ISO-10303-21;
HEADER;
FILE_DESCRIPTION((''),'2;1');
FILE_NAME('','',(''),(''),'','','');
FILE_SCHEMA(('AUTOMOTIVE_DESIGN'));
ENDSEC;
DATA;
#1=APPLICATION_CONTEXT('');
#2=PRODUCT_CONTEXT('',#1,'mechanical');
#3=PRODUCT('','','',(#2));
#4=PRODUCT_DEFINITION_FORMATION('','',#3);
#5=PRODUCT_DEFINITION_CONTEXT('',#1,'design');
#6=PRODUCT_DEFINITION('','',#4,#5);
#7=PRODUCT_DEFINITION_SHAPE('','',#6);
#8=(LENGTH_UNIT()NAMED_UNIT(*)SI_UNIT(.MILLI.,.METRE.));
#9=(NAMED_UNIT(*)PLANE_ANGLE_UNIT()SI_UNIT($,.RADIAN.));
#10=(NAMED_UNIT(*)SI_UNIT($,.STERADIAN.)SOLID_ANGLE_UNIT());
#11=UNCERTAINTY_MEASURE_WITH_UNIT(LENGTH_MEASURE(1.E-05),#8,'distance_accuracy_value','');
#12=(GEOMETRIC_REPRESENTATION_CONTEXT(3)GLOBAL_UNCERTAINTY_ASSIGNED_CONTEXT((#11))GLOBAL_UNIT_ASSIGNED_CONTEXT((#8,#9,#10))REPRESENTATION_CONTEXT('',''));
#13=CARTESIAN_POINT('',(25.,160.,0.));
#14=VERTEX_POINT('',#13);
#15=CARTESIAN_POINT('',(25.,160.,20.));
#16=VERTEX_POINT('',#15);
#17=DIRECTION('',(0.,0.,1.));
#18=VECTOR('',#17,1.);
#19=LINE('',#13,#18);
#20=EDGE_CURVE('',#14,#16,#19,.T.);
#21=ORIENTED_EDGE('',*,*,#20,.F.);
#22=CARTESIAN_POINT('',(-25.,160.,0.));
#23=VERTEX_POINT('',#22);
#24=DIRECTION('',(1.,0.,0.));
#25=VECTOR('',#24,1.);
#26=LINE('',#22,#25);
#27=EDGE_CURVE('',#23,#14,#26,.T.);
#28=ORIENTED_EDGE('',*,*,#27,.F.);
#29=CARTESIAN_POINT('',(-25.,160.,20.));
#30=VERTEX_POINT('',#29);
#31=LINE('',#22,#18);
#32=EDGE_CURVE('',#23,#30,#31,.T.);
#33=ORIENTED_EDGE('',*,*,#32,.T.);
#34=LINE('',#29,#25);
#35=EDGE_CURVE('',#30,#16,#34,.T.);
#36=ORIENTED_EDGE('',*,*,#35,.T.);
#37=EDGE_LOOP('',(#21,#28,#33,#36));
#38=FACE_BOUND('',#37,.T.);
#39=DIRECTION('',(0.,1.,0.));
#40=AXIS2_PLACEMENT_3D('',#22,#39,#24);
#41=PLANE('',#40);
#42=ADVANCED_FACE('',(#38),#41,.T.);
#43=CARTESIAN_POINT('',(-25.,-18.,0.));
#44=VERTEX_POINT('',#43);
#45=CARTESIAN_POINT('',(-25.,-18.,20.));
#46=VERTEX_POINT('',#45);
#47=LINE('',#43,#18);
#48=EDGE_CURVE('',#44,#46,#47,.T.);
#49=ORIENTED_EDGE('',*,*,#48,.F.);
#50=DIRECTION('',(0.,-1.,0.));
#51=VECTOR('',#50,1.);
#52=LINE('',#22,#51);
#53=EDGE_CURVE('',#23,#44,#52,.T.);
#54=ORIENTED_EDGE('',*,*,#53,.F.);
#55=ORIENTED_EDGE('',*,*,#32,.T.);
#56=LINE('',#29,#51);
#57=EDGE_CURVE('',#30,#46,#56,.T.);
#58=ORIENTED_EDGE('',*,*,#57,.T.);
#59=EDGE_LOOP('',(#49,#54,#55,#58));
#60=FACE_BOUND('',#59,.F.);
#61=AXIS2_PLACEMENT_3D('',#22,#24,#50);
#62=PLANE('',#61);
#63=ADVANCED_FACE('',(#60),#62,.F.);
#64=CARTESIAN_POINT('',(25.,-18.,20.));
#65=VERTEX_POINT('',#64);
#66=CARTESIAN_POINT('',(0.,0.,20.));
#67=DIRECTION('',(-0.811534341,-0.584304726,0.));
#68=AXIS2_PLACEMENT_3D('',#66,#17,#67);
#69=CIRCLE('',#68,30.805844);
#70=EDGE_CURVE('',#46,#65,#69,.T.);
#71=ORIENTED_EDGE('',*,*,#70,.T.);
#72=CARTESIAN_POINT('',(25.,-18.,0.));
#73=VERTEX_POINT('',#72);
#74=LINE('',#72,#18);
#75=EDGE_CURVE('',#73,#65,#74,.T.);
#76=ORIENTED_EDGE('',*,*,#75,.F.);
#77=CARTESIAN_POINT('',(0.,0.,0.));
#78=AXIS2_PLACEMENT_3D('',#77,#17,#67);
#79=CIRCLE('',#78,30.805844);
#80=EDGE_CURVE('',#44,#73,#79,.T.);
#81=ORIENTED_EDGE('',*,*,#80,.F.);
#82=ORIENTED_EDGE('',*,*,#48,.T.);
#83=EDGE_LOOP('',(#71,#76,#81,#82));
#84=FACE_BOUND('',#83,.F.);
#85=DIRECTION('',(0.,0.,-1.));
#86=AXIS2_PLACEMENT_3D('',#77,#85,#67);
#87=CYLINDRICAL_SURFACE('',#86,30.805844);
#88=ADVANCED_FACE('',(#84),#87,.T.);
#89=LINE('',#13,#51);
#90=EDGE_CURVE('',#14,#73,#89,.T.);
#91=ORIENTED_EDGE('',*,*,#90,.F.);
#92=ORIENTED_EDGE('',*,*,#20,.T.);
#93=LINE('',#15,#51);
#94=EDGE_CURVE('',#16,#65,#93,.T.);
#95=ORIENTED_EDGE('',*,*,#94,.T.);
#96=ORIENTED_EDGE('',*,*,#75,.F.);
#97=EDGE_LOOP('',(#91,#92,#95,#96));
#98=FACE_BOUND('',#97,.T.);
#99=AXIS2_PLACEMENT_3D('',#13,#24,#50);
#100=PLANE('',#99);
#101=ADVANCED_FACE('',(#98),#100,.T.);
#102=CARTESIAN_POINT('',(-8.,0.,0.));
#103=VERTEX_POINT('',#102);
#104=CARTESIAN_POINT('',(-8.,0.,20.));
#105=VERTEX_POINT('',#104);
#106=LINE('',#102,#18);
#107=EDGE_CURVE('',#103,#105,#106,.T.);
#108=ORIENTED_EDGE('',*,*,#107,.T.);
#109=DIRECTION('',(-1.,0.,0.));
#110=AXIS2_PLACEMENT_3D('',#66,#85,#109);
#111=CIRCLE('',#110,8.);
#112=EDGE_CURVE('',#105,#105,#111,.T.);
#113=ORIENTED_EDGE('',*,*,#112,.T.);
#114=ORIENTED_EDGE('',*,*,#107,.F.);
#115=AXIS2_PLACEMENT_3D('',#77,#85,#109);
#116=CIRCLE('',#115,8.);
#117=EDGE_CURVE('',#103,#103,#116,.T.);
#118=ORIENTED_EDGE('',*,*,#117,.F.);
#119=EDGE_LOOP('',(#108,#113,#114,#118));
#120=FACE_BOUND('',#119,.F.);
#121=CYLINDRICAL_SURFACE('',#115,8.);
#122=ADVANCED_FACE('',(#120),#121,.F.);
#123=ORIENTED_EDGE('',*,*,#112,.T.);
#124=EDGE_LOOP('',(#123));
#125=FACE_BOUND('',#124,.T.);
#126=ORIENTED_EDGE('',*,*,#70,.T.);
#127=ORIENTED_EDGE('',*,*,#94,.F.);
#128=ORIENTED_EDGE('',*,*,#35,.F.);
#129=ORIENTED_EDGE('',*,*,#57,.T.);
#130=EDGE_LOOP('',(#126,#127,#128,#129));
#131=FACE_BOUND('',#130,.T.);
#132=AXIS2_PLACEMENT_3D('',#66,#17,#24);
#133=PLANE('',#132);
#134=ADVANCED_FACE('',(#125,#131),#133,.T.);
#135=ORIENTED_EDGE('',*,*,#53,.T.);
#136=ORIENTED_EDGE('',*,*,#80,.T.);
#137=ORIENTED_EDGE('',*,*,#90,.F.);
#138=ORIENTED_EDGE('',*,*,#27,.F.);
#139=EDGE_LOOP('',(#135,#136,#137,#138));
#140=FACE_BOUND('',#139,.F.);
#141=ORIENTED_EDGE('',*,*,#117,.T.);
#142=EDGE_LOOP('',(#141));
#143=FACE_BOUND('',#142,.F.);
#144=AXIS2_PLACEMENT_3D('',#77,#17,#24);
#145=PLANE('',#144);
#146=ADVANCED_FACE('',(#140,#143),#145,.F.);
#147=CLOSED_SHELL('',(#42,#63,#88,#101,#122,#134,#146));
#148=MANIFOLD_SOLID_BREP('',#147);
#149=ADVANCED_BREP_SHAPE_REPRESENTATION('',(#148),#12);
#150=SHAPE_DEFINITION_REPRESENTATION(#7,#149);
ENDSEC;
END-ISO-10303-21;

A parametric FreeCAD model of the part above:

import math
import FreeCAD as App
import Part
import Sketcher

doc = App.newDocument("Part")
body = doc.addObject("PartDesign::Body", "Body")

# Sketch on XY plane
sketch1 = body.newObject("Sketcher::SketchObject", "Sketch")
sketch1.AttachmentSupport = (doc.getObject("XY_Plane"), [""])
sketch1.MapMode = "FlatFace"
sketch1.addGeometry(Part.LineSegment(App.Vector(25, 160, 0), App.Vector(-25, 160, 0)), False)
sketch1.addGeometry(Part.LineSegment(App.Vector(-25, 160, 0), App.Vector(-25, -18, 0)), False)
sketch1.addGeometry(Part.ArcOfCircle(Part.Circle(App.Vector(0, 0, 0), App.Vector(0, 0, 1), 31), math.radians(-144), math.radians(-36)), False)
sketch1.addGeometry(Part.LineSegment(App.Vector(25, -18, 0), App.Vector(25, 160, 0)), False)
sketch1.addConstraint(Sketcher.Constraint("Coincident", 0, 2, 1, 1))
sketch1.addConstraint(Sketcher.Constraint("Coincident", 1, 2, 2, 1))
sketch1.addConstraint(Sketcher.Constraint("Coincident", 2, 2, 3, 1))
sketch1.addConstraint(Sketcher.Constraint("Coincident", 3, 2, 0, 1))
sketch1.addConstraint(Sketcher.Constraint("Horizontal", 0))
sketch1.addConstraint(Sketcher.Constraint("Vertical", 1))
sketch1.addConstraint(Sketcher.Constraint("Vertical", 3))
sketch1.addConstraint(Sketcher.Constraint("Coincident", 2, 3, -1, 1))
sketch1.addConstraint(Sketcher.Constraint("Horizontal", 1, 2, 2, 2))
sketch1.addConstraint(Sketcher.Constraint("DistanceX", 0, 2, 0, 1, 50.0))
sketch1.addConstraint(Sketcher.Constraint("DistanceY", -1, 1, 0, 2, 160.0))
sketch1.addConstraint(Sketcher.Constraint("DistanceY", 1, 2, -1, 1, 18.0))
pad1 = body.newObject("PartDesign::Pad", "Pad")
pad1.Profile = sketch1
pad1.Length = 20

# Sketch on XY plane
sketch2 = body.newObject("Sketcher::SketchObject", "Sketch001")
sketch2.AttachmentSupport = (doc.getObject("XY_Plane"), [""])
sketch2.MapMode = "FlatFace"
sketch2.addGeometry(Part.Circle(App.Vector(0, 0, 0), App.Vector(0, 0, 1), 8), False)
sketch2.addConstraint(Sketcher.Constraint("Coincident", 0, 3, -1, 1))
sketch2.addConstraint(Sketcher.Constraint("Diameter", 0, 16.0))
pocket1 = body.newObject("PartDesign::Pocket", "Pocket")
pocket1.Profile = sketch2
pocket1.Type = "ThroughAll"
pocket1.Reversed = True

doc.recompute()
